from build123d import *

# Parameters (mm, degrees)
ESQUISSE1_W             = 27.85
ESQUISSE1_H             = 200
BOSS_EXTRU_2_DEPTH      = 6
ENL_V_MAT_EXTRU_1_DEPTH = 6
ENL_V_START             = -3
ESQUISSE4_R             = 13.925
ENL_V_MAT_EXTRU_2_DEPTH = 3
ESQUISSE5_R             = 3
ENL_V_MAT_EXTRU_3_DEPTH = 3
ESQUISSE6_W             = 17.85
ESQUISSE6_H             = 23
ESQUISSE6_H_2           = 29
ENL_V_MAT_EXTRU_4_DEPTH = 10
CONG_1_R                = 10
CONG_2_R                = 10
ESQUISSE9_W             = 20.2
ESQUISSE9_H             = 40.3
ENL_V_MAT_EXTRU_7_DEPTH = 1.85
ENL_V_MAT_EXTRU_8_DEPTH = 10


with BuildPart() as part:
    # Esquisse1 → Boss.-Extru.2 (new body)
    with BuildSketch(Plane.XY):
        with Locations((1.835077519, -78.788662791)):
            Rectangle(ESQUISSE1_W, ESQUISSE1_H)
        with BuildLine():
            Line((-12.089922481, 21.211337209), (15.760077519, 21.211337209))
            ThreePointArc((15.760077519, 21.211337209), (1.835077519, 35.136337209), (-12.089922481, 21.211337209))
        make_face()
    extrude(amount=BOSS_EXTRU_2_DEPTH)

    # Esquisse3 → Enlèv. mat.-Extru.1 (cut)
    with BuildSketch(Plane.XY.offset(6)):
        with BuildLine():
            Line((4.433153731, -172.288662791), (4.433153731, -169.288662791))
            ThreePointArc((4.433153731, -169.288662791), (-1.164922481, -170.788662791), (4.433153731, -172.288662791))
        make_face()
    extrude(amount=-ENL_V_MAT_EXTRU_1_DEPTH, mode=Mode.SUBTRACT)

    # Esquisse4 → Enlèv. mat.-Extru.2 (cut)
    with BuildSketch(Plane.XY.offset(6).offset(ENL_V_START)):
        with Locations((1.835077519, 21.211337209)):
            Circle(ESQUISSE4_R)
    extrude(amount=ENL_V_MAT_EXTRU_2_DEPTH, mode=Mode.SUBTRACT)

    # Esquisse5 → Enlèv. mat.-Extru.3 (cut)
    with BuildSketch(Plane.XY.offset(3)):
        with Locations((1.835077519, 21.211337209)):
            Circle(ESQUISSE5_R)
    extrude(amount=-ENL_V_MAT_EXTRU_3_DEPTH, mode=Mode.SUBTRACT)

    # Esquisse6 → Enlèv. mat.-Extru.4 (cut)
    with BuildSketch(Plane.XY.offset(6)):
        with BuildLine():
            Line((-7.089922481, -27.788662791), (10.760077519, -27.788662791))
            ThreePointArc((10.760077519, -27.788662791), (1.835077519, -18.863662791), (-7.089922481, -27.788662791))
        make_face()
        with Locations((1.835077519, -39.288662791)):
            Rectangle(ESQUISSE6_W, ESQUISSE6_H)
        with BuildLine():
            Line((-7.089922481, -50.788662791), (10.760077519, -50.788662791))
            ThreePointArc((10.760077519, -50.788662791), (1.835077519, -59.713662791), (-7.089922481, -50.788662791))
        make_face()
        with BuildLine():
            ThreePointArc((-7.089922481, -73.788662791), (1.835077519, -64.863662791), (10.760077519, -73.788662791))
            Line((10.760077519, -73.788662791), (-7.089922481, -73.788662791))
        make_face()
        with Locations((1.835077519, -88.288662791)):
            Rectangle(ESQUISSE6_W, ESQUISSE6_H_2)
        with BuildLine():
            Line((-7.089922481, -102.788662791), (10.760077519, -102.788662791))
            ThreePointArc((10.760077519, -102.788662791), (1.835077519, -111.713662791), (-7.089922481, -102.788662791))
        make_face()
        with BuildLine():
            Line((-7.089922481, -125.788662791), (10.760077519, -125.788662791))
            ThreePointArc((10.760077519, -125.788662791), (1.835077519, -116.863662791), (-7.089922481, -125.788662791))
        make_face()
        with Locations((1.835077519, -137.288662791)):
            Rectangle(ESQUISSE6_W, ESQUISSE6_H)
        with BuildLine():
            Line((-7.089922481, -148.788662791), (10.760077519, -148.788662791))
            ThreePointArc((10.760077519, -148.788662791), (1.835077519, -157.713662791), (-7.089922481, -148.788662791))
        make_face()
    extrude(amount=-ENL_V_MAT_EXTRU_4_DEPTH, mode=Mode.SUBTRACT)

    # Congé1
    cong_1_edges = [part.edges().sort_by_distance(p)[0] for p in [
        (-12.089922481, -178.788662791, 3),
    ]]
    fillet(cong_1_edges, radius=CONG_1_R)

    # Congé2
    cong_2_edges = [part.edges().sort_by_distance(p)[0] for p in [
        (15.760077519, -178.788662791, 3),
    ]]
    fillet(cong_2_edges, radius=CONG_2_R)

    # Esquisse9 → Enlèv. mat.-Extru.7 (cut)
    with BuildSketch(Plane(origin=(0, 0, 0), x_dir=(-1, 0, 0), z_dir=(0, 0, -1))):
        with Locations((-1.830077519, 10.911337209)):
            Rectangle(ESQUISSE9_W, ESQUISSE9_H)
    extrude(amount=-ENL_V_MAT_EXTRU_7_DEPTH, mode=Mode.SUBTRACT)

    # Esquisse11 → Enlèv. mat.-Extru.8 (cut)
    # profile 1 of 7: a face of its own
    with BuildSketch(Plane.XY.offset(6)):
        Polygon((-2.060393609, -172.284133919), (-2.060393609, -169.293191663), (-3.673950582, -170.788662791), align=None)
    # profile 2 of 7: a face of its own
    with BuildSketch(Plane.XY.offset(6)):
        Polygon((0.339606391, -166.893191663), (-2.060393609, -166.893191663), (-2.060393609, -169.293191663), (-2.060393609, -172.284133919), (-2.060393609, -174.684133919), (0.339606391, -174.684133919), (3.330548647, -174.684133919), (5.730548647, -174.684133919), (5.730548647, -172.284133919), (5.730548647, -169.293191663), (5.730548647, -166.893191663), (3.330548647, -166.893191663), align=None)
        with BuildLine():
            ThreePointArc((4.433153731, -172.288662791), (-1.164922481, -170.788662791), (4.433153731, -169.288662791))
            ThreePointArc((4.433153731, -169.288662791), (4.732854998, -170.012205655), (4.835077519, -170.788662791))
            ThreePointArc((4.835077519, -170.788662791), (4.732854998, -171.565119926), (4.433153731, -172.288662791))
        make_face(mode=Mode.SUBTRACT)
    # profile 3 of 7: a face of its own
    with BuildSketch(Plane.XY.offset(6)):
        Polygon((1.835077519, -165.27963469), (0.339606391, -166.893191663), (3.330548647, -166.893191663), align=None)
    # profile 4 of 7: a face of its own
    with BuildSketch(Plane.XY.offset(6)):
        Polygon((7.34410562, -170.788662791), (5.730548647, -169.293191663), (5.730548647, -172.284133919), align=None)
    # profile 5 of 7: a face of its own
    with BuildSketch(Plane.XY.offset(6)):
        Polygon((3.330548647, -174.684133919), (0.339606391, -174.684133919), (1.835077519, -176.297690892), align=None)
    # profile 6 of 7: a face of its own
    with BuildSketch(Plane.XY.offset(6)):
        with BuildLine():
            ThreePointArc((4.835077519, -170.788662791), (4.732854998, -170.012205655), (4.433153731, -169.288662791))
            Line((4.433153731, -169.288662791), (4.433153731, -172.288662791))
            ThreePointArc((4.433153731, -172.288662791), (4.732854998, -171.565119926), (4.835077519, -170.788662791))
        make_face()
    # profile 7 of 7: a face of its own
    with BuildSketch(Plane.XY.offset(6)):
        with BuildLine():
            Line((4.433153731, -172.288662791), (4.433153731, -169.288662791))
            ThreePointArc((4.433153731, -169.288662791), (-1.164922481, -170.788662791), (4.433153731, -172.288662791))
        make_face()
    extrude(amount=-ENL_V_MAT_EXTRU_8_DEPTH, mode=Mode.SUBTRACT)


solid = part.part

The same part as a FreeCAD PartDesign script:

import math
import FreeCAD as App
import Part
import Sketcher

V = App.Vector


def edges_at(feature, points):
    """Names of the edges that pass closest to the given points."""
    edges = feature.Shape.Edges
    near = lambda p: min(range(len(edges)), key=lambda i: edges[i].distToShape(Part.Vertex(*p))[0])
    return sorted({f"Edge{near(p) + 1}" for p in points})


def add_polygon(sketch, points):
    """Adds a closed chain of lines whose ends are joined by coincident constraints."""
    first, n = sketch.GeometryCount, len(points)
    for a, b in zip(points, points[1:] + points[:1]):
        sketch.addGeometry(Part.LineSegment(App.Vector(*a, 0), App.Vector(*b, 0)), False)
    for i in range(n):
        sketch.addConstraint(Sketcher.Constraint("Coincident", first + i, 2, first + (i + 1) % n, 1))

doc = App.newDocument("Part")
params = doc.addObject("Spreadsheet::Sheet", "Params")
for row, (alias, value) in enumerate([
    ("sketch1_height", "200 mm"),
    ("pad1_length", "6 mm"),
    ("sketch2_radius", "3 mm"),
    ("sketch2_height", "3 mm"),
    ("pocket1_length", "6 mm"),
    ("sketch3_diameter", "27.85 mm"),
    ("pocket2_length", "3 mm"),
    ("sketch4_diameter", "6 mm"),
    ("pocket3_length", "3 mm"),
    ("sketch5_height", "23 mm"),
    ("sketch5_height2", "29 mm"),
    ("pocket4_length", "10 mm"),
    ("fillet_radius", "10 mm"),
    ("fillet2_radius", "10 mm"),
    ("sketch6_width", "20.2 mm"),
    ("sketch6_height", "40.3 mm"),
    ("pocket5_length", "1.85 mm"),
    ("sketch7_width", "2.4 mm"),
    ("sketch7_length", "2.2 mm"),
    ("pocket6_length", "10 mm"),
], start=1):
    params.set(f"A{row}", alias)
    params.set(f"B{row}", "=" + value)
    params.setAlias(f"B{row}", alias)

body = doc.addObject("PartDesign::Body", "Body")

# Sketch on XY plane
sketch1 = body.newObject("Sketcher::SketchObject", "Sketch")
sketch1.AttachmentSupport = (doc.getObject("XY_Plane"), [""])
sketch1.MapMode = "FlatFace"
sketch1.addGeometry(Part.LineSegment(V(-12.089922, 21.211337, 0), V(-12.089922, -178.788663, 0)), False)
sketch1.addGeometry(Part.LineSegment(V(-12.089922, -178.788663, 0), V(15.760078, -178.788663, 0)), False)
sketch1.addGeometry(Part.LineSegment(V(15.760078, -178.788663, 0), V(15.760078, 21.211337, 0)), False)
sketch1.addGeometry(Part.ArcOfCircle(Part.Circle(V(1.835078, 21.211337, 0), V(0, 0, 1), 13.925), math.radians(0), math.radians(180)), False)
sketch1.addConstraint(Sketcher.Constraint("Coincident", 0, 2, 1, 1))
sketch1.addConstraint(Sketcher.Constraint("Coincident", 1, 2, 2, 1))
sketch1.addConstraint(Sketcher.Constraint("Tangent", 2, 2, 3, 1))
sketch1.addConstraint(Sketcher.Constraint("Tangent", 3, 2, 0, 1))
sketch1.addConstraint(Sketcher.Constraint("Vertical", 0))
sketch1.addConstraint(Sketcher.Constraint("Horizontal", 1))
sketch1.addConstraint(Sketcher.Constraint("Vertical", 2))
sketch1.addConstraint(Sketcher.Constraint("DistanceY", 0, 2, 0, 1, 200.0))
sketch1.addConstraint(Sketcher.Constraint("Radius", 3, 13.925))
sketch1.addConstraint(Sketcher.Constraint("DistanceX", -1, 1, 3, 3, 1.835078))
sketch1.addConstraint(Sketcher.Constraint("DistanceY", -1, 1, 3, 3, 21.211337))
sketch1.setExpression("Constraints[7]", "Params.sketch1_height")
pad1 = body.newObject("PartDesign::Pad", "Pad")
pad1.Profile = sketch1
pad1.setExpression("Length", "Params.pad1_length")

# Sketch on XY plane
sketch2 = body.newObject("Sketcher::SketchObject", "Sketch001")
sketch2.AttachmentSupport = (doc.getObject("XY_Plane"), [""])
sketch2.MapMode = "FlatFace"
sketch2.AttachmentOffset = App.Placement(V(0, 0, 6), App.Rotation())
sketch2.addGeometry(Part.LineSegment(V(4.433154, -172.288663, 0), V(4.433154, -169.288663, 0)), False)
sketch2.addGeometry(Part.ArcOfCircle(Part.Circle(V(1.835078, -170.788663, 0), V(0, 0, 1), 3), math.radians(30), math.radians(330)), False)
sketch2.addConstraint(Sketcher.Constraint("Coincident", 0, 1, 1, 2))
sketch2.addConstraint(Sketcher.Constraint("Coincident", 1, 1, 0, 2))
sketch2.addConstraint(Sketcher.Constraint("Vertical", 0))
sketch2.addConstraint(Sketcher.Constraint("Radius", 1, 3.0))
sketch2.addConstraint(Sketcher.Constraint("DistanceY", 0, 1, 0, 2, 3.0))
sketch2.addConstraint(Sketcher.Constraint("DistanceX", -1, 1, 1, 3, 1.835078))
sketch2.addConstraint(Sketcher.Constraint("DistanceY", 1, 3, -1, 1, 170.788663))
sketch2.setExpression("Constraints[3]", "Params.sketch2_radius")
sketch2.setExpression("Constraints[4]", "Params.sketch2_height")
pocket1 = body.newObject("PartDesign::Pocket", "Pocket")
pocket1.Profile = sketch2
pocket1.setExpression("Length", "Params.pocket1_length")

# Sketch on XY plane
sketch3 = body.newObject("Sketcher::SketchObject", "Sketch002")
sketch3.AttachmentSupport = (doc.getObject("XY_Plane"), [""])
sketch3.MapMode = "FlatFace"
sketch3.AttachmentOffset = App.Placement(V(0, 0, 3), App.Rotation())
sketch3.addGeometry(Part.Circle(V(1.835078, 21.211337, 0), V(0, 0, 1), 13.925), False)
sketch3.addConstraint(Sketcher.Constraint("Diameter", 0, 27.85))
sketch3.addConstraint(Sketcher.Constraint("DistanceX", -1, 1, 0, 3, 1.835078))
sketch3.addConstraint(Sketcher.Constraint("DistanceY", -1, 1, 0, 3, 21.211337))
sketch3.setExpression("Constraints[0]", "Params.sketch3_diameter")
pocket2 = body.newObject("PartDesign::Pocket", "Pocket001")
pocket2.Profile = sketch3
pocket2.setExpression("Length", "Params.pocket2_length")
pocket2.Reversed = True

# Sketch on XY plane
sketch4 = body.newObject("Sketcher::SketchObject", "Sketch003")
sketch4.AttachmentSupport = (doc.getObject("XY_Plane"), [""])
sketch4.MapMode = "FlatFace"
sketch4.AttachmentOffset = App.Placement(V(0, 0, 3), App.Rotation())
sketch4.addGeometry(Part.Circle(V(1.835078, 21.211337, 0), V(0, 0, 1), 3), False)
sketch4.addConstraint(Sketcher.Constraint("Diameter", 0, 6.0))
sketch4.addConstraint(Sketcher.Constraint("DistanceX", -1, 1, 0, 3, 1.835078))
sketch4.addConstraint(Sketcher.Constraint("DistanceY", -1, 1, 0, 3, 21.211337))
sketch4.setExpression("Constraints[0]", "Params.sketch4_diameter")
pocket3 = body.newObject("PartDesign::Pocket", "Pocket002")
pocket3.Profile = sketch4
pocket3.setExpression("Length", "Params.pocket3_length")

# Sketch on XY plane
sketch5 = body.newObject("Sketcher::SketchObject", "Sketch004")
sketch5.AttachmentSupport = (doc.getObject("XY_Plane"), [""])
sketch5.MapMode = "FlatFace"
sketch5.AttachmentOffset = App.Placement(V(0, 0, 6), App.Rotation())
sketch5.addGeometry(Part.ArcOfCircle(Part.Circle(V(1.835078, -27.788663, 0), V(0, 0, 1), 8.925), math.radians(0), math.radians(180)), False)
sketch5.addGeometry(Part.LineSegment(V(-7.089922, -27.788663, 0), V(-7.089922, -50.788663, 0)), False)
sketch5.addGeometry(Part.ArcOfCircle(Part.Circle(V(1.835078, -50.788663, 0), V(0, 0, 1), 8.925), math.radians(180), math.radians(360)), False)
sketch5.addGeometry(Part.LineSegment(V(10.760078, -50.788663, 0), V(10.760078, -27.788663, 0)), False)
sketch5.addGeometry(Part.ArcOfCircle(Part.Circle(V(1.835078, -73.788663, 0), V(0, 0, 1), 8.925), math.radians(0), math.radians(180)), False)
sketch5.addGeometry(Part.LineSegment(V(-7.089922, -73.788663, 0), V(-7.089922, -102.788663, 0)), False)
sketch5.addGeometry(Part.ArcOfCircle(Part.Circle(V(1.835078, -102.788663, 0), V(0, 0, 1), 8.925), math.radians(180), math.radians(360)), False)
sketch5.addGeometry(Part.LineSegment(V(10.760078, -102.788663, 0), V(10.760078, -73.788663, 0)), False)
sketch5.addGeometry(Part.ArcOfCircle(Part.Circle(V(1.835078, -125.788663, 0), V(0, 0, 1), 8.925), math.radians(0), math.radians(180)), False)
sketch5.addGeometry(Part.LineSegment(V(-7.089922, -125.788663, 0), V(-7.089922, -148.788663, 0)), False)
sketch5.addGeometry(Part.ArcOfCircle(Part.Circle(V(1.835078, -148.788663, 0), V(0, 0, 1), 8.925), math.radians(180), math.radians(360)), False)
sketch5.addGeometry(Part.LineSegment(V(10.760078, -148.788663, 0), V(10.760078, -125.788663, 0)), False)
sketch5.addConstraint(Sketcher.Constraint("Tangent", 0, 2, 1, 1))
sketch5.addConstraint(Sketcher.Constraint("Tangent", 1, 2, 2, 1))
sketch5.addConstraint(Sketcher.Constraint("Tangent", 2, 2, 3, 1))
sketch5.addConstraint(Sketcher.Constraint("Tangent", 3, 2, 0, 1))
sketch5.addConstraint(Sketcher.Constraint("Tangent", 4, 2, 5, 1))
sketch5.addConstraint(Sketcher.Constraint("Tangent", 5, 2, 6, 1))
sketch5.addConstraint(Sketcher.Constraint("Tangent", 6, 2, 7, 1))
sketch5.addConstraint(Sketcher.Constraint("Tangent", 7, 2, 4, 1))
sketch5.addConstraint(Sketcher.Constraint("Tangent", 8, 2, 9, 1))
sketch5.addConstraint(Sketcher.Constraint("Tangent", 9, 2, 10, 1))
sketch5.addConstraint(Sketcher.Constraint("Tangent", 10, 2, 11, 1))
sketch5.addConstraint(Sketcher.Constraint("Tangent", 11, 2, 8, 1))
sketch5.addConstraint(Sketcher.Constraint("Vertical", 1))
sketch5.addConstraint(Sketcher.Constraint("Vertical", 3))
sketch5.addConstraint(Sketcher.Constraint("Vertical", 5))
sketch5.addConstraint(Sketcher.Constraint("Vertical", 7))
sketch5.addConstraint(Sketcher.Constraint("Vertical", 9))
sketch5.addConstraint(Sketcher.Constraint("Vertical", 11))
sketch5.addConstraint(Sketcher.Constraint("Equal", 2, 4))
sketch5.addConstraint(Sketcher.Constraint("Equal", 6, 8))
sketch5.addConstraint(Sketcher.Constraint("Vertical", 2, 3, 4, 3))
sketch5.addConstraint(Sketcher.Constraint("Vertical", 6, 3, 8, 3))
sketch5.addConstraint(Sketcher.Constraint("Equal", 3, 9))
sketch5.addConstraint(Sketcher.Constraint("DistanceY", 1, 2, 1, 1, 23.0))
sketch5.addConstraint(Sketcher.Constraint("DistanceY", 5, 2, 5, 1, 29.0))
sketch5.addConstraint(Sketcher.Constraint("Radius", 0, 8.925))
sketch5.addConstraint(Sketcher.Constraint("DistanceY", 4, 3, 2, 3, 23.0))
sketch5.addConstraint(Sketcher.Constraint("DistanceY", 8, 3, 6, 3, 23.0))
sketch5.addConstraint(Sketcher.Constraint("DistanceX", -1, 1, 0, 3, 1.835078))
sketch5.addConstraint(Sketcher.Constraint("DistanceY", 0, 3, -1, 1, 27.788663))
sketch5.setExpression("Constraints[23]", "Params.sketch5_height")
sketch5.setExpression("Constraints[24]", "Params.sketch5_height2")
pocket4 = body.newObject("PartDesign::Pocket", "Pocket003")
pocket4.Profile = sketch5
pocket4.setExpression("Length", "Params.pocket4_length")
doc.recompute()

fillet = body.newObject("PartDesign::Fillet", "Fillet")
fillet.Base = (pocket4, edges_at(pocket4, [(-12.09, -178.789, 3)]))
fillet.setExpression("Radius", "Params.fillet_radius")
doc.recompute()

fillet2 = body.newObject("PartDesign::Fillet", "Fillet001")
fillet2.Base = (fillet, edges_at(fillet, [(15.76, -178.789, 3)]))
fillet2.setExpression("Radius", "Params.fillet2_radius")

# Sketch on XY plane
sketch6 = body.newObject("Sketcher::SketchObject", "Sketch005")
sketch6.AttachmentSupport = (doc.getObject("XY_Plane"), [""])
sketch6.MapMode = "FlatFace"
add_polygon(sketch6, [(11.930078, 31.061337), (11.930078, -9.238663), (-8.269922, -9.238663), (-8.269922, 31.061337)])  # lines 0-3
sketch6.addConstraint(Sketcher.Constraint("Vertical", 0))
sketch6.addConstraint(Sketcher.Constraint("Horizontal", 1))
sketch6.addConstraint(Sketcher.Constraint("Vertical", 2))
sketch6.addConstraint(Sketcher.Constraint("Horizontal", 3))
sketch6.addConstraint(Sketcher.Constraint("DistanceX", 1, 2, 1, 1, 20.2))
sketch6.addConstraint(Sketcher.Constraint("DistanceY", 0, 2, 0, 1, 40.3))
sketch6.addConstraint(Sketcher.Constraint("DistanceX", -1, 1, 0, 2, 11.930078))
sketch6.addConstraint(Sketcher.Constraint("DistanceY", 0, 2, -1, 1, 9.238663))
sketch6.setExpression("Constraints[8]", "Params.sketch6_width")
sketch6.setExpression("Constraints[9]", "Params.sketch6_height")
pocket5 = body.newObject("PartDesign::Pocket", "Pocket004")
pocket5.Profile = sketch6
pocket5.setExpression("Length", "Params.pocket5_length")
pocket5.Reversed = True

# Sketch on XY plane
sketch7 = body.newObject("Sketcher::SketchObject", "Sketch006")
sketch7.AttachmentSupport = (doc.getObject("XY_Plane"), [""])
sketch7.MapMode = "FlatFace"
sketch7.AttachmentOffset = App.Placement(V(0, 0, 6), App.Rotation())
add_polygon(sketch7, [(-2.060394, -169.293192), (-3.673951, -170.788663), (-2.060394, -172.284134), (-2.060394, -174.684134), (0.339606, -174.684134), (1.835078, -176.297691), (3.330549, -174.684134), (5.730549, -174.684134), (5.730549, -172.284134), (7.344106, -170.788663), (5.730549, -169.293192), (5.730549, -166.893192), (3.330549, -166.893192), (1.835078, -165.279635), (0.339606, -166.893192), (-2.060394, -166.893192)])  # lines 0-15
sketch7.addConstraint(Sketcher.Constraint("Vertical", 2))
sketch7.addConstraint(Sketcher.Constraint("Horizontal", 3))
sketch7.addConstraint(Sketcher.Constraint("Horizontal", 6))
sketch7.addConstraint(Sketcher.Constraint("Vertical", 7))
sketch7.addConstraint(Sketcher.Constraint("Vertical", 10))
sketch7.addConstraint(Sketcher.Constraint("Horizontal", 11))
sketch7.addConstraint(Sketcher.Constraint("Horizontal", 14))
sketch7.addConstraint(Sketcher.Constraint("Vertical", 15))
sketch7.addConstraint(Sketcher.Constraint("Perpendicular", 0, 4))
sketch7.addConstraint(Sketcher.Constraint("Perpendicular", 1, 5))
sketch7.addConstraint(Sketcher.Constraint("Perpendicular", 4, 8))
sketch7.addConstraint(Sketcher.Constraint("Perpendicular", 5, 9))
sketch7.addConstraint(Sketcher.Constraint("Perpendicular", 8, 12))
sketch7.addConstraint(Sketcher.Constraint("Perpendicular", 9, 13))
sketch7.addConstraint(Sketcher.Constraint("Horizontal", 3, 2, 5, 2))
sketch7.addConstraint(Sketcher.Constraint("Horizontal", 1, 2, 7, 2))
sketch7.addConstraint(Sketcher.Constraint("Horizontal", 0, 2, 8, 2))
sketch7.addConstraint(Sketcher.Constraint("Horizontal", 11, 2, 13, 2))
sketch7.addConstraint(Sketcher.Constraint("Horizontal", 9, 2, 15, 2))
sketch7.addConstraint(Sketcher.Constraint("Vertical", 7, 2, 9, 2))
sketch7.addConstraint(Sketcher.Constraint("Vertical", 5, 2, 11, 2))
sketch7.addConstraint(Sketcher.Constraint("Vertical", 4, 2, 12, 2))
sketch7.addConstraint(Sketcher.Constraint("Vertical", 3, 2, 13, 2))
sketch7.addConstraint(Sketcher.Constraint("Equal", 3, 6))
sketch7.addConstraint(Sketcher.Constraint("Equal", 14, 2))
sketch7.addConstraint(Sketcher.Constraint("Equal", 7, 10))
sketch7.addConstraint(Sketcher.Constraint("Equal", 1, 4))
sketch7.addConstraint(Sketcher.Constraint("DistanceX", 3, 1, 3, 2, 2.4))
sketch7.addConstraint(Sketcher.Constraint("Distance", 0, 2.2))
sketch7.addConstraint(Sketcher.Constraint("DistanceX", 0, 2, 5, 2, 7.004499))
sketch7.addConstraint(Sketcher.Constraint("DistanceX", 0, 2, -1, 1, 3.673951))
sketch7.addConstraint(Sketcher.Constraint("DistanceY", 4, 2, -1, 1, 176.297691))
sketch7.setExpression("Constraints[43]", "Params.sketch7_width")
sketch7.setExpression("Constraints[44]", "Params.sketch7_length")
pocket6 = body.newObject("PartDesign::Pocket", "Pocket005")
pocket6.Profile = sketch7
pocket6.setExpression("Length", "Params.pocket6_length")

doc.recompute()
